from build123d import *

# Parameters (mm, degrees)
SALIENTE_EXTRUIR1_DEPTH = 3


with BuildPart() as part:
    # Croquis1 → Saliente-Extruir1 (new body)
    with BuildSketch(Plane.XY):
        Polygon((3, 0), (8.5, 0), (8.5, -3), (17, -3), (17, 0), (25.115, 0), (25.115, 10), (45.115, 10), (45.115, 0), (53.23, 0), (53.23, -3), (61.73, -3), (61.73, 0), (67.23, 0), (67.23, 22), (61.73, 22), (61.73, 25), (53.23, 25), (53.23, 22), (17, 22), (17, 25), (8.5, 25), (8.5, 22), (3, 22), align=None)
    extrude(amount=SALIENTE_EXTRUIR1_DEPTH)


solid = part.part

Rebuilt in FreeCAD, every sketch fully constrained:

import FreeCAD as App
import Part
import Sketcher

doc = App.newDocument("Part")
body = doc.addObject("PartDesign::Body", "Body")

# Sketch on XY plane
sketch1 = body.newObject("Sketcher::SketchObject", "Sketch")
sketch1.AttachmentSupport = (doc.getObject("XY_Plane"), [""])
sketch1.MapMode = "FlatFace"
sketch1.addGeometry([
    Part.LineSegment(App.Vector(3, 0, 0), App.Vector(8.5, 0, 0)),  # 0
    Part.LineSegment(App.Vector(8.5, 0, 0), App.Vector(8.5, -3, 0)),  # 1
    Part.LineSegment(App.Vector(8.5, -3, 0), App.Vector(17, -3, 0)),  # 2
    Part.LineSegment(App.Vector(17, -3, 0), App.Vector(17, 0, 0)),  # 3
    Part.LineSegment(App.Vector(17, 0, 0), App.Vector(25.1, 0, 0)),  # 4
    Part.LineSegment(App.Vector(25.1, 0, 0), App.Vector(25.1, 10, 0)),  # 5
    Part.LineSegment(App.Vector(25.1, 10, 0), App.Vector(45.1, 10, 0)),  # 6
    Part.LineSegment(App.Vector(45.1, 10, 0), App.Vector(45.1, 0, 0)),  # 7
    Part.LineSegment(App.Vector(45.1, 0, 0), App.Vector(53.2, 0, 0)),  # 8
    Part.LineSegment(App.Vector(53.2, 0, 0), App.Vector(53.2, -3, 0)),  # 9
    Part.LineSegment(App.Vector(53.2, -3, 0), App.Vector(61.7, -3, 0)),  # 10
    Part.LineSegment(App.Vector(61.7, -3, 0), App.Vector(61.7, 0, 0)),  # 11
    Part.LineSegment(App.Vector(61.7, 0, 0), App.Vector(67.2, 0, 0)),  # 12
    Part.LineSegment(App.Vector(67.2, 0, 0), App.Vector(67.2, 22, 0)),  # 13
    Part.LineSegment(App.Vector(67.2, 22, 0), App.Vector(61.7, 22, 0)),  # 14
    Part.LineSegment(App.Vector(61.7, 22, 0), App.Vector(61.7, 25, 0)),  # 15
    Part.LineSegment(App.Vector(61.7, 25, 0), App.Vector(53.2, 25, 0)),  # 16
    Part.LineSegment(App.Vector(53.2, 25, 0), App.Vector(53.2, 22, 0)),  # 17
    Part.LineSegment(App.Vector(53.2, 22, 0), App.Vector(17, 22, 0)),  # 18
    Part.LineSegment(App.Vector(17, 22, 0), App.Vector(17, 25, 0)),  # 19
    Part.LineSegment(App.Vector(17, 25, 0), App.Vector(8.5, 25, 0)),  # 20
    Part.LineSegment(App.Vector(8.5, 25, 0), App.Vector(8.5, 22, 0)),  # 21
    Part.LineSegment(App.Vector(8.5, 22, 0), App.Vector(3, 22, 0)),  # 22
    Part.LineSegment(App.Vector(3, 22, 0), App.Vector(3, 0, 0)),  # 23
], False)
sketch1.addConstraint([
    Sketcher.Constraint("Coincident", 0, 2, 1, 1),
    Sketcher.Constraint("Coincident", 1, 2, 2, 1),
    Sketcher.Constraint("Coincident", 2, 2, 3, 1),
    Sketcher.Constraint("Coincident", 3, 2, 4, 1),
    Sketcher.Constraint("Coincident", 4, 2, 5, 1),
    Sketcher.Constraint("Coincident", 5, 2, 6, 1),
    Sketcher.Constraint("Coincident", 6, 2, 7, 1),
    Sketcher.Constraint("Coincident", 7, 2, 8, 1),
    Sketcher.Constraint("Coincident", 8, 2, 9, 1),
    Sketcher.Constraint("Coincident", 9, 2, 10, 1),
    Sketcher.Constraint("Coincident", 10, 2, 11, 1),
    Sketcher.Constraint("Coincident", 11, 2, 12, 1),
    Sketcher.Constraint("Coincident", 12, 2, 13, 1),
    Sketcher.Constraint("Coincident", 13, 2, 14, 1),
    Sketcher.Constraint("Coincident", 14, 2, 15, 1),
    Sketcher.Constraint("Coincident", 15, 2, 16, 1),
    Sketcher.Constraint("Coincident", 16, 2, 17, 1),
    Sketcher.Constraint("Coincident", 17, 2, 18, 1),
    Sketcher.Constraint("Coincident", 18, 2, 19, 1),
    Sketcher.Constraint("Coincident", 19, 2, 20, 1),
    Sketcher.Constraint("Coincident", 20, 2, 21, 1),
    Sketcher.Constraint("Coincident", 21, 2, 22, 1),
    Sketcher.Constraint("Coincident", 22, 2, 23, 1),
    Sketcher.Constraint("Coincident", 23, 2, 0, 1),
    Sketcher.Constraint("Horizontal", 0),
    Sketcher.Constraint("Vertical", 1),
    Sketcher.Constraint("Horizontal", 2),
    Sketcher.Constraint("Vertical", 3),
    Sketcher.Constraint("Horizontal", 4),
    Sketcher.Constraint("Vertical", 5),
    Sketcher.Constraint("Horizontal", 6),
    Sketcher.Constraint("Vertical", 7),
    Sketcher.Constraint("Horizontal", 8),
    Sketcher.Constraint("Vertical", 9),
    Sketcher.Constraint("Horizontal", 10),
    Sketcher.Constraint("Vertical", 11),
    Sketcher.Constraint("Horizontal", 12),
    Sketcher.Constraint("Vertical", 13),
    Sketcher.Constraint("Horizontal", 14),
    Sketcher.Constraint("Vertical", 15),
    Sketcher.Constraint("Horizontal", 16),
    Sketcher.Constraint("Vertical", 17),
    Sketcher.Constraint("Horizontal", 18),
    Sketcher.Constraint("Vertical", 19),
    Sketcher.Constraint("Horizontal", 20),
    Sketcher.Constraint("Vertical", 21),
    Sketcher.Constraint("Horizontal", 22),
    Sketcher.Constraint("Vertical", 23),
    Sketcher.Constraint("PointOnObject", 0, 2, -1),
    Sketcher.Constraint("PointOnObject", 3, 2, -1),
    Sketcher.Constraint("PointOnObject", 7, 2, -1),
    Sketcher.Constraint("PointOnObject", 11, 2, -1),
    Sketcher.Constraint("Horizontal", 2, 2, 9, 2),
    Sketcher.Constraint("Horizontal", 14, 2, 17, 2),
    Sketcher.Constraint("Horizontal", 16, 2, 19, 2),
    Sketcher.Constraint("Horizontal", 18, 2, 21, 2),
    Sketcher.Constraint("Vertical", 11, 2, 14, 2),
    Sketcher.Constraint("Vertical", 9, 2, 16, 2),
    Sketcher.Constraint("Vertical", 3, 2, 18, 2),
    Sketcher.Constraint("Vertical", 1, 2, 20, 2),
    Sketcher.Constraint("Equal", 4, 8),
    Sketcher.Constraint("Equal", 2, 10),
    Sketcher.Constraint("Equal", 0, 12),
    Sketcher.Constraint("Equal", 11, 15),
    Sketcher.Constraint("DistanceX", 6, 1, 6, 2, 20.0),
    Sketcher.Constraint("DistanceY", 1, 2, 1, 1, 3.0),
    Sketcher.Constraint("DistanceY", 5, 1, 5, 2, 10.0),
    Sketcher.Constraint("DistanceY", 13, 1, 13, 2, 22.0),
    Sketcher.Constraint("DistanceX", 0, 1, 0, 2, 5.5),
    Sketcher.Constraint("DistanceX", 2, 1, 2, 2, 8.5),
    Sketcher.Constraint("DistanceX", -1, 1, 2, 2, 17.0),
    Sketcher.Constraint("DistanceX", 18, 2, 18, 1, 36.23),
])
pad1 = body.newObject("PartDesign::Pad", "Pad")
pad1.Profile = sketch1
pad1.Length = 3

doc.recompute()
